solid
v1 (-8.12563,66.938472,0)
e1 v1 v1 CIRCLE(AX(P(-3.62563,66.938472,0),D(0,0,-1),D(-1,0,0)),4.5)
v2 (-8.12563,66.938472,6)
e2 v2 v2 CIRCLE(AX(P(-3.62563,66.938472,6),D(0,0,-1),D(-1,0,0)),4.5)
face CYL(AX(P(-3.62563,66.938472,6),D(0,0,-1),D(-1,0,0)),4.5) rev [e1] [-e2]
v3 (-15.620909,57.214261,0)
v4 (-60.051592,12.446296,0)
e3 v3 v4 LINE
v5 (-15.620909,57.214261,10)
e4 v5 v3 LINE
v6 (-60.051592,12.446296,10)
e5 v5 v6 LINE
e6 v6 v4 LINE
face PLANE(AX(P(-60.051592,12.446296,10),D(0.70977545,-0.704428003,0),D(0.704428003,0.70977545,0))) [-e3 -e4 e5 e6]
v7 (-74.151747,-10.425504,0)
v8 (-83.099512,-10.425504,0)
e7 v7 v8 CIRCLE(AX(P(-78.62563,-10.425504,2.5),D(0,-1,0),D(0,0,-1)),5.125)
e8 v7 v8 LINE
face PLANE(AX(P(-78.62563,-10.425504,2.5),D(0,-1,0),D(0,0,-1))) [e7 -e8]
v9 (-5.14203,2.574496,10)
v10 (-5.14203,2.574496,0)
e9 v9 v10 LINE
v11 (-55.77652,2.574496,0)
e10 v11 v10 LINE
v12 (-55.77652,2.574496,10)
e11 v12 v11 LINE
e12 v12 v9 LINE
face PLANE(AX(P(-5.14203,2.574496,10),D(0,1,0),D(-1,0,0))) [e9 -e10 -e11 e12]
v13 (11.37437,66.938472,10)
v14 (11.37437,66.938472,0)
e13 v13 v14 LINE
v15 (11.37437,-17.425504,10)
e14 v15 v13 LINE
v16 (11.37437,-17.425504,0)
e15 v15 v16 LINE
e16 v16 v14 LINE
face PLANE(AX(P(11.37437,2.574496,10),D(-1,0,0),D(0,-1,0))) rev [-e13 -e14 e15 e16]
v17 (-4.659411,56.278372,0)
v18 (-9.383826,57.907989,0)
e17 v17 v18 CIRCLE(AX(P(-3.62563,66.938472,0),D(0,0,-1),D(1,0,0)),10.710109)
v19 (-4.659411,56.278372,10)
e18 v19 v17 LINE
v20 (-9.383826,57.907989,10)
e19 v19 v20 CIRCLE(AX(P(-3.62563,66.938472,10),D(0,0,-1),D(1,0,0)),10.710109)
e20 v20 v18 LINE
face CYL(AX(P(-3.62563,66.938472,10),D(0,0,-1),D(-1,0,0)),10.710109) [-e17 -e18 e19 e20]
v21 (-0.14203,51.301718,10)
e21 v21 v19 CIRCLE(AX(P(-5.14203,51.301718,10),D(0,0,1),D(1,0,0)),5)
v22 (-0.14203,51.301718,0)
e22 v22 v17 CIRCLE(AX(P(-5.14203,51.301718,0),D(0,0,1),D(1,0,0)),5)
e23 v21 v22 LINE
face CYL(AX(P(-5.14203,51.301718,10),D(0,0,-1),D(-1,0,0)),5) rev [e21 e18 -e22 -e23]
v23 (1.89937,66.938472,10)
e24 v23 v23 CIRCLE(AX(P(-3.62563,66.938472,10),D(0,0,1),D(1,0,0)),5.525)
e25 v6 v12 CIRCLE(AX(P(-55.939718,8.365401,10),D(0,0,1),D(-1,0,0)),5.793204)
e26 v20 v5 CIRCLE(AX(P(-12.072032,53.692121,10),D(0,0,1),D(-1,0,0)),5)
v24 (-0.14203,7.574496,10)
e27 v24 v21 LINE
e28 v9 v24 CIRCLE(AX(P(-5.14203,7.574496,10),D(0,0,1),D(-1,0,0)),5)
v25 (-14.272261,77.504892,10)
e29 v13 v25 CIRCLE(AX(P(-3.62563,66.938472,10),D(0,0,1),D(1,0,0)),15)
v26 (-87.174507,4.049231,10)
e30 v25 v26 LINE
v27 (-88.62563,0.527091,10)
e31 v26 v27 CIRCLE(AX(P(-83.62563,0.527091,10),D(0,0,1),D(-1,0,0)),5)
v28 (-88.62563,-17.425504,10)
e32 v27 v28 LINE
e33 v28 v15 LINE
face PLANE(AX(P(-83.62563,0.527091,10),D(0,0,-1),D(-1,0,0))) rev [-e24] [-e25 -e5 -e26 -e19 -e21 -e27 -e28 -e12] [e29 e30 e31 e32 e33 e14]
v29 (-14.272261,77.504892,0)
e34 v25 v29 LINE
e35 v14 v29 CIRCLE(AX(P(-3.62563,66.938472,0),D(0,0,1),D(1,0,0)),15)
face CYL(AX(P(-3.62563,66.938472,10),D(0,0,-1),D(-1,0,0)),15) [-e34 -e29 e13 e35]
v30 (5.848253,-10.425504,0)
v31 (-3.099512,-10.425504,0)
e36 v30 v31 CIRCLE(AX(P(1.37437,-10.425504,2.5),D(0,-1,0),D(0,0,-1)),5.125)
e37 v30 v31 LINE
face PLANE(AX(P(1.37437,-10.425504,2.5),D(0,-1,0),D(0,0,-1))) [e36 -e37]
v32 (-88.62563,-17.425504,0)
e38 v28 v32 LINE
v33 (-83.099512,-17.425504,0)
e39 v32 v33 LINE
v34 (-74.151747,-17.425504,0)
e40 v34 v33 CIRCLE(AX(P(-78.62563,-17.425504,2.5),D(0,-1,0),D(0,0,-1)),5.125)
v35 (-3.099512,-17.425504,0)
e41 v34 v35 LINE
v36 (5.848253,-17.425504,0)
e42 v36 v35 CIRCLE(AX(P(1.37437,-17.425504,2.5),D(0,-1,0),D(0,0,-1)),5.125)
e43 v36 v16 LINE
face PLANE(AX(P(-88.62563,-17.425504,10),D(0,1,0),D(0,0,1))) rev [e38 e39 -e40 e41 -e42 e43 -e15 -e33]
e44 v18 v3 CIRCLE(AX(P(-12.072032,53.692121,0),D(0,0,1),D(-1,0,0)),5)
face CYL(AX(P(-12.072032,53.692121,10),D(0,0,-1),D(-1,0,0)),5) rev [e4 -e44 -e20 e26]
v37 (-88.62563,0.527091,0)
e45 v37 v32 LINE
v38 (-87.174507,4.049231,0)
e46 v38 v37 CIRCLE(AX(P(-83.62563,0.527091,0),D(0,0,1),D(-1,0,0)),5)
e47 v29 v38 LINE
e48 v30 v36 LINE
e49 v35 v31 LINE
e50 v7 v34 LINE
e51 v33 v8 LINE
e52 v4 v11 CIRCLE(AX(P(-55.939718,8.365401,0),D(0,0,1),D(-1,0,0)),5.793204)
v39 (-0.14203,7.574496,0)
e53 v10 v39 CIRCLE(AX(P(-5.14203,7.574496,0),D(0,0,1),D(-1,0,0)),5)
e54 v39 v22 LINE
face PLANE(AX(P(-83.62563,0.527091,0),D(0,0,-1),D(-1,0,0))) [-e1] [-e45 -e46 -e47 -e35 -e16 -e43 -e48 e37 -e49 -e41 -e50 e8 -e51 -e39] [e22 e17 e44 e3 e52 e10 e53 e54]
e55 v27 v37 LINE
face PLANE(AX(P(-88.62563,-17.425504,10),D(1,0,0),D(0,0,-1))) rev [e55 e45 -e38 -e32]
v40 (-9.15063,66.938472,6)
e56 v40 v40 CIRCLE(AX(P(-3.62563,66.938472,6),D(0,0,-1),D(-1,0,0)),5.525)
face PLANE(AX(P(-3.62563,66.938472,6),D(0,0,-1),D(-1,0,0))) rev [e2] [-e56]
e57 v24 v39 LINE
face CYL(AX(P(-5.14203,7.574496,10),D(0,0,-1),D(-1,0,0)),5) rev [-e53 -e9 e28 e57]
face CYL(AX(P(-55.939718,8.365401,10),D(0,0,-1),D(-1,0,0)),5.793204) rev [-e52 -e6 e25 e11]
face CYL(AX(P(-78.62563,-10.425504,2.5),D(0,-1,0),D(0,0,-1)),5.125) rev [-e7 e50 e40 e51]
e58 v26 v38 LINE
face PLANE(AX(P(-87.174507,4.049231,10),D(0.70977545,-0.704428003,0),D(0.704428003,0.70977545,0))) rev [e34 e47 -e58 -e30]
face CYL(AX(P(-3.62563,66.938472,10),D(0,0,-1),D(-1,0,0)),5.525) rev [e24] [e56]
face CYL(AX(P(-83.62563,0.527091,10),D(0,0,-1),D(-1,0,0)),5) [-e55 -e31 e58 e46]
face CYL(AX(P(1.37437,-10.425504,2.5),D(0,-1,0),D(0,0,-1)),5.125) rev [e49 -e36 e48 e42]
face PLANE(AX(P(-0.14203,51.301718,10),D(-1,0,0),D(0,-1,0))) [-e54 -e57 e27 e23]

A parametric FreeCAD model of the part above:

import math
import FreeCAD as App
import Part
import Sketcher

doc = App.newDocument("Part")
body = doc.addObject("PartDesign::Body", "Body")

sketch1 = body.newObject("Sketcher::SketchObject", "Sketch")
sketch1.AttachmentSupport = (doc.getObject("XY_Plane"), [""])
sketch1.MapMode = "FlatFace"
sketch1.addGeometry(Part.LineSegment(App.Vector(-88.6, 0.5, 0), App.Vector(-88.6, -17.4, 0)), False)
sketch1.addGeometry(Part.LineSegment(App.Vector(-88.6, -17.4, 0), App.Vector(11.4, -17.4, 0)), False)
sketch1.addGeometry(Part.LineSegment(App.Vector(11.4, -17.4, 0), App.Vector(11.4, 66.9, 0)), False)
sketch1.addGeometry(Part.ArcOfCircle(Part.Circle(App.Vector(-3.6, 66.9, 0), App.Vector(0, 0, 1), 15), math.radians(0), math.radians(135)), False)
sketch1.addGeometry(Part.LineSegment(App.Vector(-14.3, 77.5, 0), App.Vector(-87.2, 4, 0)), False)
sketch1.addGeometry(Part.ArcOfCircle(Part.Circle(App.Vector(-83.6, 0.5, 0), App.Vector(0, 0, 1), 5), math.radians(135), math.radians(180)), False)
sketch1.addGeometry(Part.LineSegment(App.Vector(-5.1, 2.6, 0), App.Vector(-55.8, 2.6, 0)), False)
sketch1.addGeometry(Part.ArcOfCircle(Part.Circle(App.Vector(-55.9, 8.4, 0), App.Vector(0, 0, 1), 5.8), math.radians(135), math.radians(272)), False)
sketch1.addGeometry(Part.LineSegment(App.Vector(-60.1, 12.4, 0), App.Vector(-15.6, 57.2, 0)), False)
sketch1.addGeometry(Part.ArcOfCircle(Part.Circle(App.Vector(-12.1, 53.7, 0), App.Vector(0, 0, 1), 5), math.radians(57), math.radians(135)), False)
sketch1.addGeometry(Part.ArcOfCircle(Part.Circle(App.Vector(-3.6, 66.9, 0), App.Vector(0, 0, 1), 10.7), math.radians(-123), math.radians(-96)), False)
sketch1.addGeometry(Part.ArcOfCircle(Part.Circle(App.Vector(-5.1, 51.3, 0), App.Vector(0, 0, 1), 5), math.radians(0), math.radians(84)), False)
sketch1.addGeometry(Part.LineSegment(App.Vector(-0.1, 51.3, 0), App.Vector(-0.1, 7.6, 0)), False)
sketch1.addGeometry(Part.ArcOfCircle(Part.Circle(App.Vector(-5.1, 7.6, 0), App.Vector(0, 0, 1), 5), math.radians(-90), math.radians(0)), False)
sketch1.addGeometry(Part.Circle(App.Vector(-3.6, 66.9, 0), App.Vector(0, 0, 1), 5.5), False)
sketch1.addConstraint(Sketcher.Constraint("Coincident", 0, 2, 1, 1))
sketch1.addConstraint(Sketcher.Constraint("Coincident", 1, 2, 2, 1))
sketch1.addConstraint(Sketcher.Constraint("Tangent", 2, 2, 3, 1))
sketch1.addConstraint(Sketcher.Constraint("Tangent", 3, 2, 4, 1))
sketch1.addConstraint(Sketcher.Constraint("Tangent", 4, 2, 5, 1))
sketch1.addConstraint(Sketcher.Constraint("Tangent", 5, 2, 0, 1))
sketch1.addConstraint(Sketcher.Constraint("Coincident", 6, 2, 7, 2))
sketch1.addConstraint(Sketcher.Constraint("Tangent", 7, 1, 8, 1))
sketch1.addConstraint(Sketcher.Constraint("Tangent", 8, 2, 9, 2))
sketch1.addConstraint(Sketcher.Constraint("Tangent", 9, 1, 10, 1))
sketch1.addConstraint(Sketcher.Constraint("Tangent", 10, 2, 11, 2))
sketch1.addConstraint(Sketcher.Constraint("Tangent", 11, 1, 12, 1))
sketch1.addConstraint(Sketcher.Constraint("Tangent", 12, 2, 13, 2))
sketch1.addConstraint(Sketcher.Constraint("Tangent", 13, 1, 6, 1))
sketch1.addConstraint(Sketcher.Constraint("Vertical", 0))
sketch1.addConstraint(Sketcher.Constraint("Horizontal", 1))
sketch1.addConstraint(Sketcher.Constraint("Vertical", 2))
sketch1.addConstraint(Sketcher.Constraint("Horizontal", 6))
sketch1.addConstraint(Sketcher.Constraint("Vertical", 12))
sketch1.addConstraint(Sketcher.Constraint("Coincident", 10, 3, 3, 3))
sketch1.addConstraint(Sketcher.Constraint("Coincident", 14, 3, 3, 3))
sketch1.addConstraint(Sketcher.Constraint("Equal", 5, 9))
sketch1.addConstraint(Sketcher.Constraint("Equal", 9, 11))
sketch1.addConstraint(Sketcher.Constraint("Equal", 11, 13))
sketch1.addConstraint(Sketcher.Constraint("Parallel", 4, 8))
sketch1.addConstraint(Sketcher.Constraint("Radius", 3, 15.0))
sketch1.addConstraint(Sketcher.Constraint("Radius", 5, 5.0))
sketch1.addConstraint(Sketcher.Constraint("Diameter", 14, 11.05))
sketch1.addConstraint(Sketcher.Constraint("DistanceX", 1, 1, 1, 2, 100.0))
sketch1.addConstraint(Sketcher.Constraint("DistanceY", 0, 2, 13, 3, 25.0))
sketch1.addConstraint(Sketcher.Constraint("Radius", 10, 10.710109))
sketch1.addConstraint(Sketcher.Constraint("DistanceX", 9, 3, 11, 3, 6.930001))
sketch1.addConstraint(Sketcher.Constraint("Radius", 7, 5.793204))
sketch1.addConstraint(Sketcher.Constraint("DistanceX", 6, 2, 6, 1, 50.634489))
sketch1.addConstraint(Sketcher.Constraint("DistanceY", 12, 2, 12, 1, 43.727222))
sketch1.addConstraint(Sketcher.Constraint("DistanceY", -1, 1, 7, 3, 8.365401))
sketch1.addConstraint(Sketcher.Constraint("DistanceX", 11, 3, 10, 3, 1.516401))
sketch1.addConstraint(Sketcher.Constraint("DistanceX", 7, 3, 6, 2, 0.163198))
sketch1.addConstraint(Sketcher.Constraint("DistanceX", 3, 3, -1, 1, 3.62563))
pad1 = body.newObject("PartDesign::Pad", "Pad")
pad1.Profile = sketch1
pad1.Length = 10

sketch2 = body.newObject("Sketcher::SketchObject", "Sketch001")
sketch2.AttachmentSupport = (doc.getObject("XZ_Plane"), [""])
sketch2.MapMode = "FlatFace"
sketch2.AttachmentOffset = App.Placement(App.Vector(0, 0, 17.425504), App.Rotation())
sketch2.addGeometry(Part.Circle(App.Vector(-79, 2, 0), App.Vector(0, 0, 1), 5), False)
sketch2.addGeometry(Part.Circle(App.Vector(1, 2, 0), App.Vector(0, 0, 1), 5), False)
sketch2.addConstraint(Sketcher.Constraint("Equal", 0, 1))
sketch2.addConstraint(Sketcher.Constraint("Horizontal", 0, 3, 1, 3))
sketch2.addConstraint(Sketcher.Constraint("Diameter", 0, 10.25))
sketch2.addConstraint(Sketcher.Constraint("DistanceX", 0, 3, 1, 3, 80.0))
sketch2.addConstraint(Sketcher.Constraint("DistanceY", -1, 1, 0, 3, 2.5))
sketch2.addConstraint(Sketcher.Constraint("DistanceX", 0, 3, -1, 1, 78.62563))
pocket1 = body.newObject("PartDesign::Pocket", "Pocket")
pocket1.Profile = sketch2
pocket1.Length = 7

sketch3 = body.newObject("Sketcher::SketchObject", "Sketch002")
sketch3.AttachmentSupport = (doc.getObject("XY_Plane"), [""])
sketch3.MapMode = "FlatFace"
sketch3.addGeometry(Part.Circle(App.Vector(-3.6, 66.9, 0), App.Vector(0, 0, 1), 5.5), False)
sketch3.addGeometry(Part.Circle(App.Vector(-3.6, 66.9, 0), App.Vector(0, 0, 1), 4.5), False)
sketch3.addConstraint(Sketcher.Constraint("Coincident", 1, 3, 0, 3))
sketch3.addConstraint(Sketcher.Constraint("Diameter", 1, 9.0))
sketch3.addConstraint(Sketcher.Constraint("Diameter", 0, 11.05))
sketch3.addConstraint(Sketcher.Constraint("DistanceX", 0, 3, -1, 1, 3.62563))
sketch3.addConstraint(Sketcher.Constraint("DistanceY", -1, 1, 0, 3, 66.938472))
pad2 = body.newObject("PartDesign::Pad", "Pad001")
pad2.Profile = sketch3
pad2.Length = 6

doc.recompute()
